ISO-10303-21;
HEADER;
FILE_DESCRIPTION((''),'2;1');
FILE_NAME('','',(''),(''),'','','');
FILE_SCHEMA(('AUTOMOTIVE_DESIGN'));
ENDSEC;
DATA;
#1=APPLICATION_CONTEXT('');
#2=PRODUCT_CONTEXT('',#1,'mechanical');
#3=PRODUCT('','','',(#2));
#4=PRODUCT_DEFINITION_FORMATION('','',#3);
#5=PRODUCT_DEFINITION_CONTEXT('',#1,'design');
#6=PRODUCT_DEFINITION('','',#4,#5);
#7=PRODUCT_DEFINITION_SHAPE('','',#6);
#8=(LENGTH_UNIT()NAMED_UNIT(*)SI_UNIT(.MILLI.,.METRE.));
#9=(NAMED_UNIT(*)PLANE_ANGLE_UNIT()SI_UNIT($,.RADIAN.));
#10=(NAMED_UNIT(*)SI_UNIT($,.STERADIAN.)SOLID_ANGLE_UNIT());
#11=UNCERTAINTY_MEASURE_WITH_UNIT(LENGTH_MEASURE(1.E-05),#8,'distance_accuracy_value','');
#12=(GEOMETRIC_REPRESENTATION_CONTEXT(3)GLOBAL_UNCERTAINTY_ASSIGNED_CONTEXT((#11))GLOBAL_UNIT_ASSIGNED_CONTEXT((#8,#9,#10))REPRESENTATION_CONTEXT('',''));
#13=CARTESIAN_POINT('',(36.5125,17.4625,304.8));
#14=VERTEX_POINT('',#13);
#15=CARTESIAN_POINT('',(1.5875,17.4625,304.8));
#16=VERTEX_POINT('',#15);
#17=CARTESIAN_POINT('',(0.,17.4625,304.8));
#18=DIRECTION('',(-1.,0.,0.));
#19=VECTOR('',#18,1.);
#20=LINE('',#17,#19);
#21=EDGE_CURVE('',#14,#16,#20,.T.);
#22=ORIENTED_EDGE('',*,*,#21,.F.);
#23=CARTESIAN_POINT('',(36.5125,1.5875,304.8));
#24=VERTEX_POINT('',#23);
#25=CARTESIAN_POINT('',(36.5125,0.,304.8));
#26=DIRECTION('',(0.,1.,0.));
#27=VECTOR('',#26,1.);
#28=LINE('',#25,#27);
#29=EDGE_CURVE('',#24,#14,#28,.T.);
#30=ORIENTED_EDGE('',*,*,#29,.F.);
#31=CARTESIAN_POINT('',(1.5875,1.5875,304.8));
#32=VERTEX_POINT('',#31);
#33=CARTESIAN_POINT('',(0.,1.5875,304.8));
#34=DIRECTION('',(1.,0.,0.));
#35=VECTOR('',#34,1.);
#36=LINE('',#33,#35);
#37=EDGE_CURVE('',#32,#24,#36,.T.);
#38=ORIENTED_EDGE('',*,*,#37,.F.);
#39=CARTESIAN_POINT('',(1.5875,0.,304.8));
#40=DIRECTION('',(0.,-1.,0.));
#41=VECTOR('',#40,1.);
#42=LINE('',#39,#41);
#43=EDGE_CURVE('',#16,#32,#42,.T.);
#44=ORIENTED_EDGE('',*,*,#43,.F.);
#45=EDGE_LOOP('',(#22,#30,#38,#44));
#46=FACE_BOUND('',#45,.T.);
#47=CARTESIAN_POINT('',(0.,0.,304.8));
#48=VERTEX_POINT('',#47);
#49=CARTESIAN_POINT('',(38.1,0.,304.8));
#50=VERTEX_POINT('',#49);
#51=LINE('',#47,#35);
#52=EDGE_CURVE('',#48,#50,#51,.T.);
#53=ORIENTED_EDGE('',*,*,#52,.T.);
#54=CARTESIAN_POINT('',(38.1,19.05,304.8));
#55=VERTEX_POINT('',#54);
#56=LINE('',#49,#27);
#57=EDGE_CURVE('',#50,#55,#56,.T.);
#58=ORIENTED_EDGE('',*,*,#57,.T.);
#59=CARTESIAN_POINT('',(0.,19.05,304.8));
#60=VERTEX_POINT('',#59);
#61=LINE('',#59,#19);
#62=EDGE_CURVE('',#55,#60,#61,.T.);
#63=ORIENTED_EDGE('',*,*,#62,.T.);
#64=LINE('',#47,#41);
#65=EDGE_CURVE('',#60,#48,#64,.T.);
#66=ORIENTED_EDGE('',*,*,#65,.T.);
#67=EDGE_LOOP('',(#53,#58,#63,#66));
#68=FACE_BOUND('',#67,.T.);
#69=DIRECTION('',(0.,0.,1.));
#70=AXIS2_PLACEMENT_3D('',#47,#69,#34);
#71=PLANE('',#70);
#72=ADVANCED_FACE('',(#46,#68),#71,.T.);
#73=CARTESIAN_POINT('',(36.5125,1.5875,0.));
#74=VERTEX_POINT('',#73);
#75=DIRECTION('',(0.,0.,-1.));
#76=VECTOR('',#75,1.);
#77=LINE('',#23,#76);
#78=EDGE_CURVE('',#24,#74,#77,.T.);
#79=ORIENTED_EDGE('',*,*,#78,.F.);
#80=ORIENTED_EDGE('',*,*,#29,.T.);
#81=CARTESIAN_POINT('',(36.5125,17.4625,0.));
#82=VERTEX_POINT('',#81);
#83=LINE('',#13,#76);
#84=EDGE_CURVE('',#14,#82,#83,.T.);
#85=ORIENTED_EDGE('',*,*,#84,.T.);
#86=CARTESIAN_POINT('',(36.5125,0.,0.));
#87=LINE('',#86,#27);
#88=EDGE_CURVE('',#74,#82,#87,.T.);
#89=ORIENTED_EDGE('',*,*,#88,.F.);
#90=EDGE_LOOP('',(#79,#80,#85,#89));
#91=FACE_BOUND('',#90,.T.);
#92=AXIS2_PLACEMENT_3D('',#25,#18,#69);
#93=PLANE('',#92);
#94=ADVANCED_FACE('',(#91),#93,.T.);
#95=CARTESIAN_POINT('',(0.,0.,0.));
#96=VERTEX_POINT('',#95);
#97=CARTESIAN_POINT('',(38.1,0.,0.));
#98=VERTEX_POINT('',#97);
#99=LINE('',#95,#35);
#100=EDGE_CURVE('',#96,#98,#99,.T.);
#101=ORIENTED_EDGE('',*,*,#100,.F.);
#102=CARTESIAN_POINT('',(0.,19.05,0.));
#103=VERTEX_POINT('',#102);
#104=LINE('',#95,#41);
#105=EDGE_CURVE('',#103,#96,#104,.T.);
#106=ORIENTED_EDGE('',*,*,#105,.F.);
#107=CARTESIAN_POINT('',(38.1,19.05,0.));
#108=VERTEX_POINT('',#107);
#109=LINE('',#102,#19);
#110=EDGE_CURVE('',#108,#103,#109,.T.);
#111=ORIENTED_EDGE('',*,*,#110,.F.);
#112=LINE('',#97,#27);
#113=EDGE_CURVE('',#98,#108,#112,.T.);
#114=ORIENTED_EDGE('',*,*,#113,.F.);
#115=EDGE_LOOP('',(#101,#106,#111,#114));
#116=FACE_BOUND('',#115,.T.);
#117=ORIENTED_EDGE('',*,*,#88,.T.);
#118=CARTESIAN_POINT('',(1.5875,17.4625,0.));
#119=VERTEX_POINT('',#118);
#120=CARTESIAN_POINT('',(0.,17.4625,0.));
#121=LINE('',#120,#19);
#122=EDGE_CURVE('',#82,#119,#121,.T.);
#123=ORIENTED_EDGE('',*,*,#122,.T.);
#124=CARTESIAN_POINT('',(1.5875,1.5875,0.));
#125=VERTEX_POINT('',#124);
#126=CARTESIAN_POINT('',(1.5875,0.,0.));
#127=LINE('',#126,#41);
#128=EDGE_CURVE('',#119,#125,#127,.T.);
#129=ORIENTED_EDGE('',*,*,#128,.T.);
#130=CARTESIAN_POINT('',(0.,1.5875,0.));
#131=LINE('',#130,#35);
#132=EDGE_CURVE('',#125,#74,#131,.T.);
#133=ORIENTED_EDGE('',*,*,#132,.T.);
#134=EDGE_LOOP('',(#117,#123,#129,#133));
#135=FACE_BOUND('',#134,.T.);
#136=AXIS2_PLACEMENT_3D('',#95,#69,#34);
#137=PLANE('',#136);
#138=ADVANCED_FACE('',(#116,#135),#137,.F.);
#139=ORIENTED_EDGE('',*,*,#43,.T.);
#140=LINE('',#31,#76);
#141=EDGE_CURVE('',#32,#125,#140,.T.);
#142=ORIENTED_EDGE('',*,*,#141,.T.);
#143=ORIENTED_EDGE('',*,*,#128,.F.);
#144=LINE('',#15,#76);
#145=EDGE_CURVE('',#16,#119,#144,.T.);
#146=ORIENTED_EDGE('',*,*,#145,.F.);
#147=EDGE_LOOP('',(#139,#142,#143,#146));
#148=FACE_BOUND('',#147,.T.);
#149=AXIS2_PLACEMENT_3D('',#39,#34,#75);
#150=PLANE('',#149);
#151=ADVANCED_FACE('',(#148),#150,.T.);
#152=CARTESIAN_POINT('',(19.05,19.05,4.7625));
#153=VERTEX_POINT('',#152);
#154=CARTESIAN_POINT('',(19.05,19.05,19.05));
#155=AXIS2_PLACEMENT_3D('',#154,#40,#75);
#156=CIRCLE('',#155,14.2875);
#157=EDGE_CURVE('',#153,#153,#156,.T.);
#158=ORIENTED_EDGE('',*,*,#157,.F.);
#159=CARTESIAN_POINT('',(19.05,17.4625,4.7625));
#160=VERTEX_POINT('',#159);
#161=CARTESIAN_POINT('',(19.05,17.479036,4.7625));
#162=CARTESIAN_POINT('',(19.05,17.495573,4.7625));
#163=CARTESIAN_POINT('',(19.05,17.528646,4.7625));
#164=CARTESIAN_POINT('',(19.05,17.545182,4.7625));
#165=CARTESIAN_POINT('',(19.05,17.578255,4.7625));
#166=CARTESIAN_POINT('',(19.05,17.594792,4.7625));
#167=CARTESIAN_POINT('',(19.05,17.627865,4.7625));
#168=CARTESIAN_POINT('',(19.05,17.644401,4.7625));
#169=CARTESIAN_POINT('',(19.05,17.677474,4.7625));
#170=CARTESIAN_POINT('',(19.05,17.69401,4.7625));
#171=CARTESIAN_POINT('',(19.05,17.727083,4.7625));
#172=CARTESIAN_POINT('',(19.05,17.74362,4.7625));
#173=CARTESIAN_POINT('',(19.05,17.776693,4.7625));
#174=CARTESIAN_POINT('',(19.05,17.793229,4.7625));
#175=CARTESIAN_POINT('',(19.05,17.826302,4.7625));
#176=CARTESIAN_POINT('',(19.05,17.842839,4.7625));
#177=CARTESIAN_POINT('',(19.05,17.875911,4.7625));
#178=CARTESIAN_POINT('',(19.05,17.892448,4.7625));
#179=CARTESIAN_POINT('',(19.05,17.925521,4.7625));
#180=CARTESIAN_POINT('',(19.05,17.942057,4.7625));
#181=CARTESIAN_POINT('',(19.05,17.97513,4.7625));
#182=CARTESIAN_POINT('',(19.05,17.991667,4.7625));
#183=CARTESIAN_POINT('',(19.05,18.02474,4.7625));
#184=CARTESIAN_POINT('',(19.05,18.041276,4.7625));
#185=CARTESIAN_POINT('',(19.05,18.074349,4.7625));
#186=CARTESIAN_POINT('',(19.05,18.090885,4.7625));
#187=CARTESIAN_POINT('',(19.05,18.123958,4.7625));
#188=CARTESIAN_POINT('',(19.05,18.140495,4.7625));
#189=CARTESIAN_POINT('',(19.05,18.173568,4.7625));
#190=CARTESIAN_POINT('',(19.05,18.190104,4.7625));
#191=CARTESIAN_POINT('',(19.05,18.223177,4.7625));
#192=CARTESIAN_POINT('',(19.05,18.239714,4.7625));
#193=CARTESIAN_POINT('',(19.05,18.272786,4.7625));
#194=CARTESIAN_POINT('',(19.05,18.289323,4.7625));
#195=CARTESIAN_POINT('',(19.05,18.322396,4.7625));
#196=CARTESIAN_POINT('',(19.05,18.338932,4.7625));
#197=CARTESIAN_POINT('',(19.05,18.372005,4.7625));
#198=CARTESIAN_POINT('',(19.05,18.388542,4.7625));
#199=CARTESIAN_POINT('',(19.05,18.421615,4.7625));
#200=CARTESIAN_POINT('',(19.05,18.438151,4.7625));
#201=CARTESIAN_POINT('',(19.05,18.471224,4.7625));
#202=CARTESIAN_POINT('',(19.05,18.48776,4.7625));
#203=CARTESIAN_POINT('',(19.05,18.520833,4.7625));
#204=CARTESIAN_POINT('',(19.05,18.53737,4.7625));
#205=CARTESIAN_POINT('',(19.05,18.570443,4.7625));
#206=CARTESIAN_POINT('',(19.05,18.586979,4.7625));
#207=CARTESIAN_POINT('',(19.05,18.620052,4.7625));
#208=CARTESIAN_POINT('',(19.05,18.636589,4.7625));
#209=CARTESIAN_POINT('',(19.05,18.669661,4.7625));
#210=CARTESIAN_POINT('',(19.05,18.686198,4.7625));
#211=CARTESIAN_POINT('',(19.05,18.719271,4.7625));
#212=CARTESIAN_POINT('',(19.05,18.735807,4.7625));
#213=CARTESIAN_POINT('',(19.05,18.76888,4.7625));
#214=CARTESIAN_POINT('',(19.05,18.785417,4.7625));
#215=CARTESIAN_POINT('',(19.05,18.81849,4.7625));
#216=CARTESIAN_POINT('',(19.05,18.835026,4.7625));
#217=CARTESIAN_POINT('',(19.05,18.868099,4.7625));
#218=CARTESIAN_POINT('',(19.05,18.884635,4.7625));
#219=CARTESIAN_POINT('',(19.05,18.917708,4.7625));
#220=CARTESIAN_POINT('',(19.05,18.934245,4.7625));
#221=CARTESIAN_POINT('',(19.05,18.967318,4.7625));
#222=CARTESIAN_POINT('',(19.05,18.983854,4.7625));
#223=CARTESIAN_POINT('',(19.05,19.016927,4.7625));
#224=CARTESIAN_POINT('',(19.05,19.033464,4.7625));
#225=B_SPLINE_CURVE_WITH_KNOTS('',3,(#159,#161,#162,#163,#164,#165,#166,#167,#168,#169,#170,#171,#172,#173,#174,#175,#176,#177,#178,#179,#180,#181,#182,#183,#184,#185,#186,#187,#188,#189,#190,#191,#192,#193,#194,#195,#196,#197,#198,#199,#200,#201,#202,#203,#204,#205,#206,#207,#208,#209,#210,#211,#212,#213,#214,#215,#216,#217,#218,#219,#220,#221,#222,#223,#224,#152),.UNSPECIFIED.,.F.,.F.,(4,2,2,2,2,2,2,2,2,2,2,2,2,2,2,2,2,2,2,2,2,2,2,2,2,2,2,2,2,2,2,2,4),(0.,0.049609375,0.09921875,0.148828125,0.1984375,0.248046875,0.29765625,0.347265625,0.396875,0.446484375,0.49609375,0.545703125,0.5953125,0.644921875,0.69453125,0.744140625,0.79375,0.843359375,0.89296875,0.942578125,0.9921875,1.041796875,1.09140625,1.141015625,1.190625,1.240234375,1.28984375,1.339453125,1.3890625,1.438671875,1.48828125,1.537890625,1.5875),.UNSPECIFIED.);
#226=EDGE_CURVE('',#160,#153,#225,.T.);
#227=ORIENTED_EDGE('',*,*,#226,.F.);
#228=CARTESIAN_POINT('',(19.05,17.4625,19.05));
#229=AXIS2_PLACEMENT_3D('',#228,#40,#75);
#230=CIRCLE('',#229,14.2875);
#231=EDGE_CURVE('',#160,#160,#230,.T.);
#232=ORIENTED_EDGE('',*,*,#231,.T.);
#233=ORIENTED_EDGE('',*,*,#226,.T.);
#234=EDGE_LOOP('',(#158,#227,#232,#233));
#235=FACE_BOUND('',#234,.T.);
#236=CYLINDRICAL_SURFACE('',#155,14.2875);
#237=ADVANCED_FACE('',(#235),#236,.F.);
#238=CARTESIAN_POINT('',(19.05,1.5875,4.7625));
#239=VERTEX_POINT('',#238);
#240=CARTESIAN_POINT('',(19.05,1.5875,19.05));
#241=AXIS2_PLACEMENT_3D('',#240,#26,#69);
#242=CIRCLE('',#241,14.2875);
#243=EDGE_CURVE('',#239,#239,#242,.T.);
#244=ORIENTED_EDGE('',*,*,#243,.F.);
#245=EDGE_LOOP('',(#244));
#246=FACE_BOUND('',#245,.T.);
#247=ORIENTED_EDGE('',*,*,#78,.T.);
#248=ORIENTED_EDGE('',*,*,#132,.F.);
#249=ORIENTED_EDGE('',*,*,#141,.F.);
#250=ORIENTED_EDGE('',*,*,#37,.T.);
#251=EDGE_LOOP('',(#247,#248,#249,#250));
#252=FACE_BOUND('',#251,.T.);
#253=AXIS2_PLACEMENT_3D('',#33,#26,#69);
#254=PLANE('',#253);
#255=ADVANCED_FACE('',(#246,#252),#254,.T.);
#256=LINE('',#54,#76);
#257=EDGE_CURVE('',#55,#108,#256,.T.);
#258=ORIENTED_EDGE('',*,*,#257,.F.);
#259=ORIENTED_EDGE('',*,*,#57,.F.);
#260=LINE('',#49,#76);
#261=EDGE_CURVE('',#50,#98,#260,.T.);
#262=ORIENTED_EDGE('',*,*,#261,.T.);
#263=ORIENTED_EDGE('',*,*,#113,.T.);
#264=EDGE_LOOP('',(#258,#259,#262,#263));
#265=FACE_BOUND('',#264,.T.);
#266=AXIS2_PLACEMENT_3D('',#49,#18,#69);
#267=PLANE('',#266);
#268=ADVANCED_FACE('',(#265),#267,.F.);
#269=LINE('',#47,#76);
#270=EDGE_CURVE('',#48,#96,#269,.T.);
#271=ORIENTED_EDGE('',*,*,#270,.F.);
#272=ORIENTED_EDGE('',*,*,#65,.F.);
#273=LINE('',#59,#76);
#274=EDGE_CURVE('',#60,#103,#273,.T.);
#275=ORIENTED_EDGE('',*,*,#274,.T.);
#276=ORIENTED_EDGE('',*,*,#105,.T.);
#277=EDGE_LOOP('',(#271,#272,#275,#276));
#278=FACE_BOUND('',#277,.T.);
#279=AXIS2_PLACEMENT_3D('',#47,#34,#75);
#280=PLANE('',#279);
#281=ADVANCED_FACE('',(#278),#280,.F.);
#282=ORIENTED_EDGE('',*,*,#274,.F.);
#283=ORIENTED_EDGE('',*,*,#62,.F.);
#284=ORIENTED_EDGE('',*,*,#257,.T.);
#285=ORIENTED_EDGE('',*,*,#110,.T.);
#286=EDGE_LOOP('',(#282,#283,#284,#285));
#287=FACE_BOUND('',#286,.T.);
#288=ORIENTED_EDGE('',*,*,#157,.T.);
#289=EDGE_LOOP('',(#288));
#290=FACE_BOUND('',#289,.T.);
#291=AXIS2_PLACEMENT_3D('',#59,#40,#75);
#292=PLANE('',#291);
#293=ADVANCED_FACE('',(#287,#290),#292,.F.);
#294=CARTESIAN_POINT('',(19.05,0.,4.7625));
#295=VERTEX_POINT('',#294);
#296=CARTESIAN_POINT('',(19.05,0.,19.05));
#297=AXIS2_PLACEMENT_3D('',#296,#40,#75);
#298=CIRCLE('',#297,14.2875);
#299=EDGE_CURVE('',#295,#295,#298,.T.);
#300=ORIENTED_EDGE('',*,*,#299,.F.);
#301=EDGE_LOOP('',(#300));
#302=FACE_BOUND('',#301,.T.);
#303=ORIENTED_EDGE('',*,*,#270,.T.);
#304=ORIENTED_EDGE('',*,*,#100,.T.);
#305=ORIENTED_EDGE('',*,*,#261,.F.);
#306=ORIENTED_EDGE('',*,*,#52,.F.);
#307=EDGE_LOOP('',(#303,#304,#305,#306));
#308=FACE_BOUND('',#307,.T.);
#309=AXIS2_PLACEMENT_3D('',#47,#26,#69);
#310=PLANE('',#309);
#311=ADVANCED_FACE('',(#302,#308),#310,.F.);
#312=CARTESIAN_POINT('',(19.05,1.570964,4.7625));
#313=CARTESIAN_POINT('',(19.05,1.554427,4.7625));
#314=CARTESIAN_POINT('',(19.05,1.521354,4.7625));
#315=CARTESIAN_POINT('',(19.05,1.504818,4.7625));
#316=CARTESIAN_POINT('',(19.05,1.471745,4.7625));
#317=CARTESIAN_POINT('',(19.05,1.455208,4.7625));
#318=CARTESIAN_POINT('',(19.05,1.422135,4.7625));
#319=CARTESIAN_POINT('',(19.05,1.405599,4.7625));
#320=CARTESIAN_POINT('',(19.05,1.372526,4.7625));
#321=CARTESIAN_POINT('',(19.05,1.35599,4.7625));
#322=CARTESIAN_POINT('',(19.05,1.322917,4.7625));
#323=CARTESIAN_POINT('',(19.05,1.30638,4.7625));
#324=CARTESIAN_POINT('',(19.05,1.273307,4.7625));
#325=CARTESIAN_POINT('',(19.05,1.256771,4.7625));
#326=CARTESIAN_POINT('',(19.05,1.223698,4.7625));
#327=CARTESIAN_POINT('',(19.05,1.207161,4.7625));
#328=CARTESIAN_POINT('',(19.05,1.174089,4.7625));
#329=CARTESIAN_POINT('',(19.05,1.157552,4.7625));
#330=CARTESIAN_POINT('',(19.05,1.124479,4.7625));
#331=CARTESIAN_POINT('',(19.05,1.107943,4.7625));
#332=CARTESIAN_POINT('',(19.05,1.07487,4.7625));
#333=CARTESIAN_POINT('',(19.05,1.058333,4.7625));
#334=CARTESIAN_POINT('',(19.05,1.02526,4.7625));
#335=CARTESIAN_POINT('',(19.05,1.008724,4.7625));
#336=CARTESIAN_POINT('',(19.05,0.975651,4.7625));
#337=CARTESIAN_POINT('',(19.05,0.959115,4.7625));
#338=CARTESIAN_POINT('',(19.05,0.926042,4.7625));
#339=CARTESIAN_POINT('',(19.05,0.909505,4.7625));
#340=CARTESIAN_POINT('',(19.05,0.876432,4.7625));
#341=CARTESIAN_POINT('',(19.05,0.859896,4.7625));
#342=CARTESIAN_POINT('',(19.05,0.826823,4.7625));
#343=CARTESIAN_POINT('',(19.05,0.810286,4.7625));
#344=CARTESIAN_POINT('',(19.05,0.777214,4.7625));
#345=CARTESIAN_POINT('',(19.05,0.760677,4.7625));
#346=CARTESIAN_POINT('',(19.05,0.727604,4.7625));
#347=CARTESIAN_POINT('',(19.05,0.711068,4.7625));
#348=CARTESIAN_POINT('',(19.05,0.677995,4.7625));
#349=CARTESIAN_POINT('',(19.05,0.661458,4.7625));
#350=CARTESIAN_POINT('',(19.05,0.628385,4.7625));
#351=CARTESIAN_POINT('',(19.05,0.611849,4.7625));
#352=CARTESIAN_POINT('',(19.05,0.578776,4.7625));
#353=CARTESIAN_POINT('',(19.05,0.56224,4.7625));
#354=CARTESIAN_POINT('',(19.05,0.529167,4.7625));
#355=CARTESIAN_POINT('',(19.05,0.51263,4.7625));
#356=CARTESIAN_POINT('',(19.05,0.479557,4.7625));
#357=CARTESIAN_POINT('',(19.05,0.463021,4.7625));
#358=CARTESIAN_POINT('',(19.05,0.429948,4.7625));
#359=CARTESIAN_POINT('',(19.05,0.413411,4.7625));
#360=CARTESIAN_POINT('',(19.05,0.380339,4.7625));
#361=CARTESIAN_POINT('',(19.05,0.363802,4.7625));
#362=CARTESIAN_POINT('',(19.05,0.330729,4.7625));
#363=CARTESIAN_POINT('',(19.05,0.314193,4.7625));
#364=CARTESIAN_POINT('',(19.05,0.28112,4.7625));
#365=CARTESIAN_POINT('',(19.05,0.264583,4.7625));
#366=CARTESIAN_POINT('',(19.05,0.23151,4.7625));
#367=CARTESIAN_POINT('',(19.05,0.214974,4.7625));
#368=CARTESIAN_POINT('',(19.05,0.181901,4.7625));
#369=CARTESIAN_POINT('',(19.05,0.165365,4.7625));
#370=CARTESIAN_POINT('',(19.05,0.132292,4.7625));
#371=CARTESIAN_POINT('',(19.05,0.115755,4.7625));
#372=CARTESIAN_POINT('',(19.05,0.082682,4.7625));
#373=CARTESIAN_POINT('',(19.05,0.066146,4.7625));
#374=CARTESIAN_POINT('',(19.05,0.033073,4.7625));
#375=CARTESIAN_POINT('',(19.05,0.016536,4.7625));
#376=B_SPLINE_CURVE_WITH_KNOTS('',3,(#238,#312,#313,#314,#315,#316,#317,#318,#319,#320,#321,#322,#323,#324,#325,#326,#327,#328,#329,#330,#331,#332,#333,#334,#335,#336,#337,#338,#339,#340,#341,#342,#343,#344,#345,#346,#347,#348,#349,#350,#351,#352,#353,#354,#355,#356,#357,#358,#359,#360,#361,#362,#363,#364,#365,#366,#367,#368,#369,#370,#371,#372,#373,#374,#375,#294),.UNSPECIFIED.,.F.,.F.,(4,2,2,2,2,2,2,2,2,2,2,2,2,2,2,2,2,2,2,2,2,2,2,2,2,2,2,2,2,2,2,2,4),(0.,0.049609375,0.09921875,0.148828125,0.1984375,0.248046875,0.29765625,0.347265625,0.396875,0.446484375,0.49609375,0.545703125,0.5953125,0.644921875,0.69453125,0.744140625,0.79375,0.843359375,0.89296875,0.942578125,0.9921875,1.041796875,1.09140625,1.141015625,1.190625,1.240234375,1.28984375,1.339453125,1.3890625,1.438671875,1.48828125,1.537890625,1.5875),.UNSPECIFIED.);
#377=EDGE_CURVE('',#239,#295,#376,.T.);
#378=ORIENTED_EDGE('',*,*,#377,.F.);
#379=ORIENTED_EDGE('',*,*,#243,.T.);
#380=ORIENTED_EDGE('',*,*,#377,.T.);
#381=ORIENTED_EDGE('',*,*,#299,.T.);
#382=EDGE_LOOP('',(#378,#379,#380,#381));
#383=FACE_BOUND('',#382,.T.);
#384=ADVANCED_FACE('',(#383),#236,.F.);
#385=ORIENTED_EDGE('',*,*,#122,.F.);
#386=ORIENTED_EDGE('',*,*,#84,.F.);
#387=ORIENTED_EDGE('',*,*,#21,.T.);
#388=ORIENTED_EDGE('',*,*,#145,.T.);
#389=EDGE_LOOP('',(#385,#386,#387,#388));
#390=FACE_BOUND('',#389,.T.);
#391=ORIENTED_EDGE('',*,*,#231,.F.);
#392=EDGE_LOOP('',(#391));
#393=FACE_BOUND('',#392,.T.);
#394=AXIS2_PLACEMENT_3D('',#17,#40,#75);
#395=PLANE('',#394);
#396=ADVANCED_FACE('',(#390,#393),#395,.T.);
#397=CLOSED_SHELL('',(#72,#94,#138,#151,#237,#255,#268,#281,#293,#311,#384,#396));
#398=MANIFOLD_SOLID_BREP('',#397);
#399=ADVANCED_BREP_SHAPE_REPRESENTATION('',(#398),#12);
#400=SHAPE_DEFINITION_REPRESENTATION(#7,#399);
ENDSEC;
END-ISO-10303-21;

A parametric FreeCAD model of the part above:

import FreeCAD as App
import Part
import Sketcher
Q = App.Units.Quantity


def add_polygon(sketch, points):
    """Adds a closed chain of lines whose ends are joined by coincident constraints."""
    first, n = sketch.GeometryCount, len(points)
    for a, b in zip(points, points[1:] + points[:1]):
        sketch.addGeometry(Part.LineSegment(App.Vector(*a, 0), App.Vector(*b, 0)), False)
    for i in range(n):
        sketch.addConstraint(Sketcher.Constraint("Coincident", first + i, 2, first + (i + 1) % n, 1))

doc = App.newDocument("Part")
body = doc.addObject("PartDesign::Body", "Body")

sketch1 = body.newObject("Sketcher::SketchObject", "Sketch")
sketch1.AttachmentSupport = (doc.getObject("XY_Plane"), [""])
sketch1.MapMode = "FlatFace"
add_polygon(sketch1, [(0, 19), (0, 0), (38, 0), (38, 19)])
add_polygon(sketch1, [(37, 2), (2, 2), (2, 17), (37, 17)])
sketch1.addConstraint([
    Sketcher.Constraint("Vertical", 0),
    Sketcher.Constraint("Horizontal", 1),
    Sketcher.Constraint("Vertical", 2),
    Sketcher.Constraint("Horizontal", 3),
    Sketcher.Constraint("Horizontal", 4),
    Sketcher.Constraint("Vertical", 5),
    Sketcher.Constraint("Horizontal", 6),
    Sketcher.Constraint("Vertical", 7),
    Sketcher.Constraint("Coincident", 0, 2, -1, 1),
    Sketcher.Constraint("DistanceX", 1, 1, 1, 2, Q("1.5 in")),
    Sketcher.Constraint("DistanceY", 0, 2, 0, 1, Q("0.75 in")),
    Sketcher.Constraint("DistanceX", 4, 2, 4, 1, Q("1.375 in")),
    Sketcher.Constraint("DistanceY", 5, 1, 5, 2, Q("0.625 in")),
    Sketcher.Constraint("DistanceX", -1, 1, 4, 2, Q("0.0625 in")),
    Sketcher.Constraint("DistanceY", -1, 1, 4, 2, Q("0.0625 in")),
])
pad1 = body.newObject("PartDesign::Pad", "Pad")
pad1.Profile = sketch1
pad1.Length = Q("12 in")

sketch2 = body.newObject("Sketcher::SketchObject", "Sketch001")
sketch2.AttachmentSupport = (doc.getObject("XZ_Plane"), [""])
sketch2.MapMode = "FlatFace"
sketch2.addGeometry(Part.Circle(App.Vector(19, 19, 0), App.Vector(0, 0, 1), 14), False)
sketch2.addConstraint([
    Sketcher.Constraint("Diameter", 0, Q("1.125 in")),
    Sketcher.Constraint("DistanceX", -1, 1, 0, 3, Q("0.75 in")),
    Sketcher.Constraint("DistanceY", -1, 1, 0, 3, Q("0.75 in")),
])
pocket1 = body.newObject("PartDesign::Pocket", "Pocket")
pocket1.Profile = sketch2
pocket1.Type = "ThroughAll"

doc.recompute()
